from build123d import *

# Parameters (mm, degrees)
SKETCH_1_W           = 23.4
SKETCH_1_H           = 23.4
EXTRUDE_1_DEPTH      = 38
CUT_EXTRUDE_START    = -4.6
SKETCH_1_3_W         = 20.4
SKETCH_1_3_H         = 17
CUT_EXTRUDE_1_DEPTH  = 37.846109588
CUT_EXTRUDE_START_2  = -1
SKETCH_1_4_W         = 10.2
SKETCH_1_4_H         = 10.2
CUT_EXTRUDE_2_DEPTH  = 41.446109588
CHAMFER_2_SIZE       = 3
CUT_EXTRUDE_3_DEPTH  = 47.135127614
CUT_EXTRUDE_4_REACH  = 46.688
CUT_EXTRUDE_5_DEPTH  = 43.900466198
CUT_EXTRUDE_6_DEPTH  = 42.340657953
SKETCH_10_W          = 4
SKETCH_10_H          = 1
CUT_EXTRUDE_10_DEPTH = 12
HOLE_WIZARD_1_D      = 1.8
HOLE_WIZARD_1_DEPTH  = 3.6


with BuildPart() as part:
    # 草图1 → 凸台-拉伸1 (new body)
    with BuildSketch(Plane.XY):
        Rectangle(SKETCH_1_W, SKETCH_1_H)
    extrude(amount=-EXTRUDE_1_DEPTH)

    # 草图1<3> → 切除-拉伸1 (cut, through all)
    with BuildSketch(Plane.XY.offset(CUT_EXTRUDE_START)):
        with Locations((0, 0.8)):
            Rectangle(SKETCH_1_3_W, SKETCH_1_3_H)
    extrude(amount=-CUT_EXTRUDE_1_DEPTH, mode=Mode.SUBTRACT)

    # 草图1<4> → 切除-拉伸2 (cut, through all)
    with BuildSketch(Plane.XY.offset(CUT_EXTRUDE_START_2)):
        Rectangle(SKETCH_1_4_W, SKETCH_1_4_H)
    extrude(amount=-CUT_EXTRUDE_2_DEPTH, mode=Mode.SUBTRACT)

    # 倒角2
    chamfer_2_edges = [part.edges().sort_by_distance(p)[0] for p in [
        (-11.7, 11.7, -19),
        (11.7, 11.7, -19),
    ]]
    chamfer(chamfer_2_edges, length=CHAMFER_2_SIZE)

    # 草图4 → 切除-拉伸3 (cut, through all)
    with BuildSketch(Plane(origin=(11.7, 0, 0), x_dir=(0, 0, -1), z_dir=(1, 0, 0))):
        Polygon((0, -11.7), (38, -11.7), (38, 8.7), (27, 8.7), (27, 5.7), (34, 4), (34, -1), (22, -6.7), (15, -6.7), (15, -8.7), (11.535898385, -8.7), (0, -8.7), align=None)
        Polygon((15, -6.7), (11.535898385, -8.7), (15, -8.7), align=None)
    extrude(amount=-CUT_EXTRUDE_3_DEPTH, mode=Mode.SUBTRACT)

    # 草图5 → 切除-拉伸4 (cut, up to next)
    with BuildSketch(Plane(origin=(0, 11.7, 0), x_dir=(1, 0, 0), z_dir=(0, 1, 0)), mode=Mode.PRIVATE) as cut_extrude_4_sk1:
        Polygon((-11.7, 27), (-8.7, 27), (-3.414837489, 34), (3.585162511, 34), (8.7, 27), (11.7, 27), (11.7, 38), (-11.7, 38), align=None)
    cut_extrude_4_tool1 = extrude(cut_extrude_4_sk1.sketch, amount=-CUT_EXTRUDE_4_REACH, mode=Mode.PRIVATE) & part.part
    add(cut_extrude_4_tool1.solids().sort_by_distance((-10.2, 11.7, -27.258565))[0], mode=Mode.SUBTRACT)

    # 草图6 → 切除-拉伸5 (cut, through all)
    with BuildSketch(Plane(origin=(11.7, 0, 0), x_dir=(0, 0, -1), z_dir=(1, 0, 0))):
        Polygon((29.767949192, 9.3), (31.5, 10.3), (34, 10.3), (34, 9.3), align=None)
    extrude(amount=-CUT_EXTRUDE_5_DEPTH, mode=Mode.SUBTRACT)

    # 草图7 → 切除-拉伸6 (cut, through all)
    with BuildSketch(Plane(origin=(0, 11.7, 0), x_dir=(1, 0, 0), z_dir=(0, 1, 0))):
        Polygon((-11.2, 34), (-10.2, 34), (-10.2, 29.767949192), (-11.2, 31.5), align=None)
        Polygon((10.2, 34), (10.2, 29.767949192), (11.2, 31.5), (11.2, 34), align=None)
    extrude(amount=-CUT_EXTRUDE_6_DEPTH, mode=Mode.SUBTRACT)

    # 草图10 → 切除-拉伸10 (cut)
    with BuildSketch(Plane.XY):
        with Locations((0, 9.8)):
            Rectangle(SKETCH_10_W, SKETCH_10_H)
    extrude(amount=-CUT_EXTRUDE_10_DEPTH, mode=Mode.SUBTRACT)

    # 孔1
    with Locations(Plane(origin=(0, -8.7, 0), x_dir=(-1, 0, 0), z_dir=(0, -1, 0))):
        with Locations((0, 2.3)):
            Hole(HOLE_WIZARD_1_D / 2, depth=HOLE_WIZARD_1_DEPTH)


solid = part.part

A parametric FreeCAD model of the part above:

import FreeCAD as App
import Part
import Sketcher

V = App.Vector
Q = App.Units.Quantity


def edges_at(feature, points):
    """Names of the edges that pass closest to the given points."""
    edges = feature.Shape.Edges
    near = lambda p: min(range(len(edges)), key=lambda i: edges[i].distToShape(Part.Vertex(*p))[0])
    return sorted({f"Edge{near(p) + 1}" for p in points})

doc = App.newDocument("Part")
params = doc.addObject("Spreadsheet::Sheet", "Params")
for row, (alias, value) in enumerate([
    ("sketch1_width", "23.4 mm"),
    ("pad1_length", "38 mm"),
    ("sketch2_height", "17 mm"),
    ("sketch2_width", "20.4 mm"),
    ("sketch3_width", "10.2 mm"),
    ("chamfer_size", "3 mm"),
    ("sketch4_width", "3 mm"),
    ("sketch4_width2", "5 mm"),
    ("sketch4_height", "38 mm"),
    ("sketch4_height2", "11 mm"),
    ("sketch4_height3", "7 mm"),
    ("sketch5_width", "3 mm"),
    ("sketch5_width2", "7 mm"),
    ("sketch5_height", "11 mm"),
    ("sketch5_width3", "23.4 mm"),
    ("pocket4_length", "3 mm"),
    ("sketch6_width", "1 mm"),
    ("sketch6_height", "2.5 mm"),
    ("sketch7_width", "1 mm"),
    ("sketch7_height", "2.5 mm"),
    ("sketch8_width", "4 mm"),
    ("sketch8_height", "1 mm"),
    ("pocket7_length", "12 mm"),
    ("sketch9_diameter", "1.8 mm"),
    ("hole_diameter", "1.8 mm"),
    ("hole_depth", "3.6 mm"),
], start=1):
    params.set(f"A{row}", alias)
    params.set(f"B{row}", "=" + value)
    params.setAlias(f"B{row}", alias)

body = doc.addObject("PartDesign::Body", "Body")

# Sketch on XY plane
sketch1 = body.newObject("Sketcher::SketchObject", "Sketch")
sketch1.AttachmentSupport = (doc.getObject("XY_Plane"), [""])
sketch1.MapMode = "FlatFace"
sketch1.addGeometry(Part.LineSegment(V(-12, 12, 0), V(-12, -12, 0)), False)
sketch1.addGeometry(Part.LineSegment(V(-12, -12, 0), V(12, -12, 0)), False)
sketch1.addGeometry(Part.LineSegment(V(12, -12, 0), V(12, 12, 0)), False)
sketch1.addGeometry(Part.LineSegment(V(12, 12, 0), V(-12, 12, 0)), False)
sketch1.addConstraint(Sketcher.Constraint("Coincident", 0, 2, 1, 1))
sketch1.addConstraint(Sketcher.Constraint("Coincident", 1, 2, 2, 1))
sketch1.addConstraint(Sketcher.Constraint("Coincident", 2, 2, 3, 1))
sketch1.addConstraint(Sketcher.Constraint("Coincident", 3, 2, 0, 1))
sketch1.addConstraint(Sketcher.Constraint("Vertical", 0))
sketch1.addConstraint(Sketcher.Constraint("Horizontal", 1))
sketch1.addConstraint(Sketcher.Constraint("Vertical", 2))
sketch1.addConstraint(Sketcher.Constraint("Horizontal", 3))
sketch1.addConstraint(Sketcher.Constraint("Symmetric", 0, 2, 2, 2, -1, 1))
sketch1.addConstraint(Sketcher.Constraint("Equal", 3, 0))
sketch1.addConstraint(Sketcher.Constraint("DistanceX", 1, 1, 1, 2, Q("23.4 mm")))
sketch1.setExpression("Constraints[10]", "Params.sketch1_width")
pad1 = body.newObject("PartDesign::Pad", "Pad")
pad1.Profile = sketch1
pad1.setExpression("Length", "Params.pad1_length")
pad1.Reversed = True

# Sketch on XY plane
sketch2 = body.newObject("Sketcher::SketchObject", "Sketch001")
sketch2.AttachmentSupport = (doc.getObject("XY_Plane"), [""])
sketch2.MapMode = "FlatFace"
sketch2.AttachmentOffset = App.Placement(V(0, 0, -4.6), App.Rotation())
sketch2.addGeometry(Part.LineSegment(V(-10, 9, 0), V(-10, -8, 0)), False)
sketch2.addGeometry(Part.LineSegment(V(-10, -8, 0), V(10, -8, 0)), False)
sketch2.addGeometry(Part.LineSegment(V(10, -8, 0), V(10, 9, 0)), False)
sketch2.addGeometry(Part.LineSegment(V(10, 9, 0), V(-10, 9, 0)), False)
sketch2.addConstraint(Sketcher.Constraint("Coincident", 0, 2, 1, 1))
sketch2.addConstraint(Sketcher.Constraint("Coincident", 1, 2, 2, 1))
sketch2.addConstraint(Sketcher.Constraint("Coincident", 2, 2, 3, 1))
sketch2.addConstraint(Sketcher.Constraint("Coincident", 3, 2, 0, 1))
sketch2.addConstraint(Sketcher.Constraint("Vertical", 0))
sketch2.addConstraint(Sketcher.Constraint("Horizontal", 1))
sketch2.addConstraint(Sketcher.Constraint("Vertical", 2))
sketch2.addConstraint(Sketcher.Constraint("Horizontal", 3))
sketch2.addConstraint(Sketcher.Constraint("DistanceY", 0, 2, 0, 1, Q("17 mm")))
sketch2.addConstraint(Sketcher.Constraint("DistanceX", 1, 1, 1, 2, Q("20.4 mm")))
sketch2.addConstraint(Sketcher.Constraint("DistanceX", 0, 2, -1, 1, Q("10.2 mm")))
sketch2.addConstraint(Sketcher.Constraint("DistanceY", 0, 2, -1, 1, Q("7.7 mm")))
sketch2.setExpression("Constraints[8]", "Params.sketch2_height")
sketch2.setExpression("Constraints[9]", "Params.sketch2_width")
pocket1 = body.newObject("PartDesign::Pocket", "Pocket")
pocket1.Profile = sketch2
pocket1.Type = "ThroughAll"

# Sketch on XY plane
sketch3 = body.newObject("Sketcher::SketchObject", "Sketch002")
sketch3.AttachmentSupport = (doc.getObject("XY_Plane"), [""])
sketch3.MapMode = "FlatFace"
sketch3.AttachmentOffset = App.Placement(V(0, 0, -1), App.Rotation())
sketch3.addGeometry(Part.LineSegment(V(-5, 5, 0), V(-5, -5, 0)), False)
sketch3.addGeometry(Part.LineSegment(V(-5, -5, 0), V(5, -5, 0)), False)
sketch3.addGeometry(Part.LineSegment(V(5, -5, 0), V(5, 5, 0)), False)
sketch3.addGeometry(Part.LineSegment(V(5, 5, 0), V(-5, 5, 0)), False)
sketch3.addConstraint(Sketcher.Constraint("Coincident", 0, 2, 1, 1))
sketch3.addConstraint(Sketcher.Constraint("Coincident", 1, 2, 2, 1))
sketch3.addConstraint(Sketcher.Constraint("Coincident", 2, 2, 3, 1))
sketch3.addConstraint(Sketcher.Constraint("Coincident", 3, 2, 0, 1))
sketch3.addConstraint(Sketcher.Constraint("Vertical", 0))
sketch3.addConstraint(Sketcher.Constraint("Horizontal", 1))
sketch3.addConstraint(Sketcher.Constraint("Vertical", 2))
sketch3.addConstraint(Sketcher.Constraint("Horizontal", 3))
sketch3.addConstraint(Sketcher.Constraint("Symmetric", 0, 2, 2, 2, -1, 1))
sketch3.addConstraint(Sketcher.Constraint("Equal", 3, 0))
sketch3.addConstraint(Sketcher.Constraint("DistanceX", 1, 1, 1, 2, Q("10.2 mm")))
sketch3.setExpression("Constraints[10]", "Params.sketch3_width")
pocket2 = body.newObject("PartDesign::Pocket", "Pocket001")
pocket2.Profile = sketch3
pocket2.Type = "ThroughAll"
doc.recompute()

chamfer = body.newObject("PartDesign::Chamfer", "Chamfer")
chamfer.Base = (pocket2, edges_at(pocket2, [(-11.7, 11.7, -19), (11.7, 11.7, -19)]))
chamfer.setExpression("Size", "Params.chamfer_size")

# Sketch on YZ plane
sketch4 = body.newObject("Sketcher::SketchObject", "Sketch003")
sketch4.AttachmentSupport = (doc.getObject("YZ_Plane"), [""])
sketch4.MapMode = "FlatFace"
sketch4.AttachmentOffset = App.Placement(V(0, 0, 11.7), App.Rotation())
sketch4.addGeometry(Part.LineSegment(V(-11.7, 0, 0), V(-11.7, -38, 0)), False)
sketch4.addGeometry(Part.LineSegment(V(-11.7, -38, 0), V(8.7, -38, 0)), False)
sketch4.addGeometry(Part.LineSegment(V(8.7, -38, 0), V(8.7, -27, 0)), False)
sketch4.addGeometry(Part.LineSegment(V(8.7, -27, 0), V(5.7, -27, 0)), False)
sketch4.addGeometry(Part.LineSegment(V(5.7, -27, 0), V(4, -34, 0)), False)
sketch4.addGeometry(Part.LineSegment(V(4, -34, 0), V(-1, -34, 0)), False)
sketch4.addGeometry(Part.LineSegment(V(-1, -34, 0), V(-6.7, -22, 0)), False)
sketch4.addGeometry(Part.LineSegment(V(-6.7, -22, 0), V(-6.7, -15, 0)), False)
sketch4.addGeometry(Part.LineSegment(V(-6.7, -15, 0), V(-8.7, -11.5, 0)), False)
sketch4.addGeometry(Part.LineSegment(V(-8.7, -11.5, 0), V(-8.7, 0, 0)), False)
sketch4.addGeometry(Part.LineSegment(V(-8.7, 0, 0), V(-11.7, 0, 0)), False)
sketch4.addConstraint(Sketcher.Constraint("Coincident", 0, 2, 1, 1))
sketch4.addConstraint(Sketcher.Constraint("Coincident", 1, 2, 2, 1))
sketch4.addConstraint(Sketcher.Constraint("Coincident", 2, 2, 3, 1))
sketch4.addConstraint(Sketcher.Constraint("Coincident", 3, 2, 4, 1))
sketch4.addConstraint(Sketcher.Constraint("Coincident", 4, 2, 5, 1))
sketch4.addConstraint(Sketcher.Constraint("Coincident", 5, 2, 6, 1))
sketch4.addConstraint(Sketcher.Constraint("Coincident", 6, 2, 7, 1))
sketch4.addConstraint(Sketcher.Constraint("Coincident", 7, 2, 8, 1))
sketch4.addConstraint(Sketcher.Constraint("Coincident", 8, 2, 9, 1))
sketch4.addConstraint(Sketcher.Constraint("Coincident", 9, 2, 10, 1))
sketch4.addConstraint(Sketcher.Constraint("Coincident", 10, 2, 0, 1))
sketch4.addConstraint(Sketcher.Constraint("Vertical", 0))
sketch4.addConstraint(Sketcher.Constraint("Horizontal", 1))
sketch4.addConstraint(Sketcher.Constraint("Vertical", 2))
sketch4.addConstraint(Sketcher.Constraint("Horizontal", 3))
sketch4.addConstraint(Sketcher.Constraint("Horizontal", 5))
sketch4.addConstraint(Sketcher.Constraint("Vertical", 7))
sketch4.addConstraint(Sketcher.Constraint("Vertical", 9))
sketch4.addConstraint(Sketcher.Constraint("Horizontal", 10))
sketch4.addConstraint(Sketcher.Constraint("PointOnObject", 9, 2, -1))
sketch4.addConstraint(Sketcher.Constraint("Equal", 3, 10))
sketch4.addConstraint(Sketcher.Constraint("DistanceX", 3, 2, 3, 1, Q("3 mm")))
sketch4.addConstraint(Sketcher.Constraint("DistanceX", 5, 2, 5, 1, Q("5 mm")))
sketch4.addConstraint(Sketcher.Constraint("DistanceY", 0, 2, 0, 1, Q("38 mm")))
sketch4.addConstraint(Sketcher.Constraint("DistanceY", 2, 1, 2, 2, Q("11 mm")))
sketch4.addConstraint(Sketcher.Constraint("DistanceY", 7, 1, 7, 2, Q("7 mm")))
sketch4.addConstraint(Sketcher.Constraint("Angle", 8, Q("120 deg")))
sketch4.addConstraint(Sketcher.Constraint("Distance", 8, Q("4 mm")))
sketch4.addConstraint(Sketcher.Constraint("DistanceX", 1, 1, 1, 2, Q("20.4 mm")))
sketch4.addConstraint(Sketcher.Constraint("DistanceX", -1, 1, 4, 2, Q("4 mm")))
sketch4.addConstraint(Sketcher.Constraint("DistanceY", 4, 2, -1, 1, Q("34 mm")))
sketch4.addConstraint(Sketcher.Constraint("DistanceY", 6, 2, -1, 1, Q("22 mm")))
sketch4.addConstraint(Sketcher.Constraint("DistanceX", 0, 2, -1, 1, Q("11.7 mm")))
sketch4.setExpression("Constraints[21]", "Params.sketch4_width")
sketch4.setExpression("Constraints[22]", "Params.sketch4_width2")
sketch4.setExpression("Constraints[23]", "Params.sketch4_height")
sketch4.setExpression("Constraints[24]", "Params.sketch4_height2")
sketch4.setExpression("Constraints[25]", "Params.sketch4_height3")
pocket3 = body.newObject("PartDesign::Pocket", "Pocket002")
pocket3.Profile = sketch4
pocket3.Type = "ThroughAll"

# Sketch on XZ plane
sketch5 = body.newObject("Sketcher::SketchObject", "Sketch004")
sketch5.AttachmentSupport = (doc.getObject("XZ_Plane"), [""])
sketch5.MapMode = "FlatFace"
sketch5.AttachmentOffset = App.Placement(V(0, 0, -11.7), App.Rotation())
sketch5.addGeometry(Part.LineSegment(V(-11.7, -27, 0), V(-8.7, -27, 0)), False)
sketch5.addGeometry(Part.LineSegment(V(-8.7, -27, 0), V(-3.4, -34, 0)), False)
sketch5.addGeometry(Part.LineSegment(V(-3.4, -34, 0), V(3.6, -34, 0)), False)
sketch5.addGeometry(Part.LineSegment(V(3.6, -34, 0), V(8.7, -27, 0)), False)
sketch5.addGeometry(Part.LineSegment(V(8.7, -27, 0), V(11.7, -27, 0)), False)
sketch5.addGeometry(Part.LineSegment(V(11.7, -27, 0), V(11.7, -38, 0)), False)
sketch5.addGeometry(Part.LineSegment(V(11.7, -38, 0), V(-11.7, -38, 0)), False)
sketch5.addGeometry(Part.LineSegment(V(-11.7, -38, 0), V(-11.7, -27, 0)), False)
sketch5.addConstraint(Sketcher.Constraint("Coincident", 0, 2, 1, 1))
sketch5.addConstraint(Sketcher.Constraint("Coincident", 1, 2, 2, 1))
sketch5.addConstraint(Sketcher.Constraint("Coincident", 2, 2, 3, 1))
sketch5.addConstraint(Sketcher.Constraint("Coincident", 3, 2, 4, 1))
sketch5.addConstraint(Sketcher.Constraint("Coincident", 4, 2, 5, 1))
sketch5.addConstraint(Sketcher.Constraint("Coincident", 5, 2, 6, 1))
sketch5.addConstraint(Sketcher.Constraint("Coincident", 6, 2, 7, 1))
sketch5.addConstraint(Sketcher.Constraint("Coincident", 7, 2, 0, 1))
sketch5.addConstraint(Sketcher.Constraint("Horizontal", 0))
sketch5.addConstraint(Sketcher.Constraint("Horizontal", 2))
sketch5.addConstraint(Sketcher.Constraint("Horizontal", 4))
sketch5.addConstraint(Sketcher.Constraint("Vertical", 5))
sketch5.addConstraint(Sketcher.Constraint("Horizontal", 6))
sketch5.addConstraint(Sketcher.Constraint("Vertical", 7))
sketch5.addConstraint(Sketcher.Constraint("Symmetric", 0, 2, 3, 2, -2))
sketch5.addConstraint(Sketcher.Constraint("Equal", 0, 4))
sketch5.addConstraint(Sketcher.Constraint("DistanceX", 0, 1, 0, 2, Q("3 mm")))
sketch5.addConstraint(Sketcher.Constraint("DistanceX", 2, 1, 2, 2, Q("7 mm")))
sketch5.addConstraint(Sketcher.Constraint("DistanceY", 5, 2, 5, 1, Q("11 mm")))
sketch5.addConstraint(Sketcher.Constraint("DistanceX", 6, 2, 6, 1, Q("23.4 mm")))
sketch5.addConstraint(Sketcher.Constraint("DistanceY", 0, 2, -1, 1, Q("27 mm")))
sketch5.addConstraint(Sketcher.Constraint("DistanceY", 1, 2, -1, 1, Q("34 mm")))
sketch5.addConstraint(Sketcher.Constraint("Distance", 1, Q("8.771143 mm")))
sketch5.setExpression("Constraints[16]", "Params.sketch5_width")
sketch5.setExpression("Constraints[17]", "Params.sketch5_width2")
sketch5.setExpression("Constraints[18]", "Params.sketch5_height")
sketch5.setExpression("Constraints[19]", "Params.sketch5_width3")
pocket4 = body.newObject("PartDesign::Pocket", "Pocket003")
pocket4.Profile = sketch5
pocket4.setExpression("Length", "Params.pocket4_length")
pocket4.Reversed = True

# Sketch on YZ plane
sketch6 = body.newObject("Sketcher::SketchObject", "Sketch005")
sketch6.AttachmentSupport = (doc.getObject("YZ_Plane"), [""])
sketch6.MapMode = "FlatFace"
sketch6.AttachmentOffset = App.Placement(V(0, 0, 11.7), App.Rotation())
sketch6.addGeometry(Part.LineSegment(V(10.3, -31.5, 0), V(9.3, -29.8, 0)), False)
sketch6.addGeometry(Part.LineSegment(V(9.3, -29.8, 0), V(9.3, -34, 0)), False)
sketch6.addGeometry(Part.LineSegment(V(9.3, -34, 0), V(10.3, -34, 0)), False)
sketch6.addGeometry(Part.LineSegment(V(10.3, -34, 0), V(10.3, -31.5, 0)), False)
sketch6.addConstraint(Sketcher.Constraint("Coincident", 0, 2, 1, 1))
sketch6.addConstraint(Sketcher.Constraint("Coincident", 1, 2, 2, 1))
sketch6.addConstraint(Sketcher.Constraint("Coincident", 2, 2, 3, 1))
sketch6.addConstraint(Sketcher.Constraint("Coincident", 3, 2, 0, 1))
sketch6.addConstraint(Sketcher.Constraint("Vertical", 1))
sketch6.addConstraint(Sketcher.Constraint("Horizontal", 2))
sketch6.addConstraint(Sketcher.Constraint("Vertical", 3))
sketch6.addConstraint(Sketcher.Constraint("DistanceX", 2, 1, 2, 2, Q("1 mm")))
sketch6.addConstraint(Sketcher.Constraint("Angle", 0, Q("120 deg")))
sketch6.addConstraint(Sketcher.Constraint("DistanceY", 3, 1, 3, 2, Q("2.5 mm")))
sketch6.addConstraint(Sketcher.Constraint("DistanceY", 1, 2, -1, 1, Q("34 mm")))
sketch6.addConstraint(Sketcher.Constraint("DistanceX", -1, 1, 0, 2, Q("9.3 mm")))
sketch6.setExpression("Constraints[7]", "Params.sketch6_width")
sketch6.setExpression("Constraints[9]", "Params.sketch6_height")
pocket5 = body.newObject("PartDesign::Pocket", "Pocket004")
pocket5.Profile = sketch6
pocket5.Type = "ThroughAll"

# Sketch on XZ plane
sketch7 = body.newObject("Sketcher::SketchObject", "Sketch006")
sketch7.AttachmentSupport = (doc.getObject("XZ_Plane"), [""])
sketch7.MapMode = "FlatFace"
sketch7.AttachmentOffset = App.Placement(V(0, 0, -11.7), App.Rotation())
sketch7.addGeometry(Part.LineSegment(V(-10.2, -34, 0), V(-11.2, -34, 0)), False)
sketch7.addGeometry(Part.LineSegment(V(-11.2, -34, 0), V(-11.2, -31.5, 0)), False)
sketch7.addGeometry(Part.LineSegment(V(-11.2, -31.5, 0), V(-10.2, -29.8, 0)), False)
sketch7.addGeometry(Part.LineSegment(V(-10.2, -29.8, 0), V(-10.2, -34, 0)), False)
sketch7.addGeometry(Part.LineSegment(V(10.2, -34, 0), V(10.2, -29.8, 0)), False)
sketch7.addGeometry(Part.LineSegment(V(10.2, -29.8, 0), V(11.2, -31.5, 0)), False)
sketch7.addGeometry(Part.LineSegment(V(11.2, -31.5, 0), V(11.2, -34, 0)), False)
sketch7.addGeometry(Part.LineSegment(V(11.2, -34, 0), V(10.2, -34, 0)), False)
sketch7.addConstraint(Sketcher.Constraint("Coincident", 0, 2, 1, 1))
sketch7.addConstraint(Sketcher.Constraint("Coincident", 1, 2, 2, 1))
sketch7.addConstraint(Sketcher.Constraint("Coincident", 2, 2, 3, 1))
sketch7.addConstraint(Sketcher.Constraint("Coincident", 3, 2, 0, 1))
sketch7.addConstraint(Sketcher.Constraint("Coincident", 4, 2, 5, 1))
sketch7.addConstraint(Sketcher.Constraint("Coincident", 5, 2, 6, 1))
sketch7.addConstraint(Sketcher.Constraint("Coincident", 6, 2, 7, 1))
sketch7.addConstraint(Sketcher.Constraint("Coincident", 7, 2, 4, 1))
sketch7.addConstraint(Sketcher.Constraint("Horizontal", 0))
sketch7.addConstraint(Sketcher.Constraint("Vertical", 1))
sketch7.addConstraint(Sketcher.Constraint("Vertical", 3))
sketch7.addConstraint(Sketcher.Constraint("Vertical", 4))
sketch7.addConstraint(Sketcher.Constraint("Vertical", 6))
sketch7.addConstraint(Sketcher.Constraint("Horizontal", 7))
sketch7.addConstraint(Sketcher.Constraint("Symmetric", 2, 2, 4, 2, -2))
sketch7.addConstraint(Sketcher.Constraint("Symmetric", 1, 2, 5, 2, -2))
sketch7.addConstraint(Sketcher.Constraint("Horizontal", 3, 2, 6, 2))
sketch7.addConstraint(Sketcher.Constraint("DistanceX", 0, 2, 0, 1, Q("1 mm")))
sketch7.addConstraint(Sketcher.Constraint("Angle", 2, Q("60 deg")))
sketch7.addConstraint(Sketcher.Constraint("DistanceY", 1, 1, 1, 2, Q("2.5 mm")))
sketch7.addConstraint(Sketcher.Constraint("DistanceY", 0, 2, -1, 1, Q("34 mm")))
sketch7.addConstraint(Sketcher.Constraint("DistanceX", 0, 2, -1, 1, Q("11.2 mm")))
sketch7.setExpression("Constraints[17]", "Params.sketch7_width")
sketch7.setExpression("Constraints[19]", "Params.sketch7_height")
pocket6 = body.newObject("PartDesign::Pocket", "Pocket005")
pocket6.Profile = sketch7
pocket6.Type = "ThroughAll"
pocket6.Reversed = True

# Sketch on XY plane
sketch8 = body.newObject("Sketcher::SketchObject", "Sketch007")
sketch8.AttachmentSupport = (doc.getObject("XY_Plane"), [""])
sketch8.MapMode = "FlatFace"
sketch8.addGeometry(Part.LineSegment(V(-2, 10.3, 0), V(-2, 9.3, 0)), False)
sketch8.addGeometry(Part.LineSegment(V(-2, 9.3, 0), V(2, 9.3, 0)), False)
sketch8.addGeometry(Part.LineSegment(V(2, 9.3, 0), V(2, 10.3, 0)), False)
sketch8.addGeometry(Part.LineSegment(V(2, 10.3, 0), V(-2, 10.3, 0)), False)
sketch8.addConstraint(Sketcher.Constraint("Coincident", 0, 2, 1, 1))
sketch8.addConstraint(Sketcher.Constraint("Coincident", 1, 2, 2, 1))
sketch8.addConstraint(Sketcher.Constraint("Coincident", 2, 2, 3, 1))
sketch8.addConstraint(Sketcher.Constraint("Coincident", 3, 2, 0, 1))
sketch8.addConstraint(Sketcher.Constraint("Vertical", 0))
sketch8.addConstraint(Sketcher.Constraint("Horizontal", 1))
sketch8.addConstraint(Sketcher.Constraint("Vertical", 2))
sketch8.addConstraint(Sketcher.Constraint("Horizontal", 3))
sketch8.addConstraint(Sketcher.Constraint("DistanceX", 1, 1, 1, 2, Q("4 mm")))
sketch8.addConstraint(Sketcher.Constraint("DistanceY", 0, 2, 0, 1, Q("1 mm")))
sketch8.addConstraint(Sketcher.Constraint("DistanceX", 0, 2, -1, 1, Q("2 mm")))
sketch8.addConstraint(Sketcher.Constraint("DistanceY", -1, 1, 0, 2, Q("9.3 mm")))
sketch8.setExpression("Constraints[8]", "Params.sketch8_width")
sketch8.setExpression("Constraints[9]", "Params.sketch8_height")
pocket7 = body.newObject("PartDesign::Pocket", "Pocket006")
pocket7.Profile = sketch8
pocket7.setExpression("Length", "Params.pocket7_length")

# Sketch on XZ plane
sketch9 = body.newObject("Sketcher::SketchObject", "Sketch008")
sketch9.AttachmentSupport = (doc.getObject("XZ_Plane"), [""])
sketch9.MapMode = "FlatFace"
sketch9.AttachmentOffset = App.Placement(V(0, 0, 8.7), App.Rotation())
sketch9.addGeometry(Part.Circle(V(0, -2.3, 0), V(0, 0, 1), 0.9), False)
sketch9.addConstraint(Sketcher.Constraint("PointOnObject", 0, 3, -2))
sketch9.addConstraint(Sketcher.Constraint("Diameter", 0, Q("1.8 mm")))
sketch9.addConstraint(Sketcher.Constraint("DistanceY", 0, 3, -1, 1, Q("2.3 mm")))
sketch9.setExpression("Constraints[1]", "Params.sketch9_diameter")
doc.recompute()
hole = body.newObject("PartDesign::Hole", "Hole")
hole.Profile = sketch9
hole.ThreadType = "None"
hole.setExpression("Diameter", "Params.hole_diameter")
hole.DepthType = "Dimension"
hole.setExpression("Depth", "Params.hole_depth")
hole.DrillPoint = "Flat"

doc.recompute()
